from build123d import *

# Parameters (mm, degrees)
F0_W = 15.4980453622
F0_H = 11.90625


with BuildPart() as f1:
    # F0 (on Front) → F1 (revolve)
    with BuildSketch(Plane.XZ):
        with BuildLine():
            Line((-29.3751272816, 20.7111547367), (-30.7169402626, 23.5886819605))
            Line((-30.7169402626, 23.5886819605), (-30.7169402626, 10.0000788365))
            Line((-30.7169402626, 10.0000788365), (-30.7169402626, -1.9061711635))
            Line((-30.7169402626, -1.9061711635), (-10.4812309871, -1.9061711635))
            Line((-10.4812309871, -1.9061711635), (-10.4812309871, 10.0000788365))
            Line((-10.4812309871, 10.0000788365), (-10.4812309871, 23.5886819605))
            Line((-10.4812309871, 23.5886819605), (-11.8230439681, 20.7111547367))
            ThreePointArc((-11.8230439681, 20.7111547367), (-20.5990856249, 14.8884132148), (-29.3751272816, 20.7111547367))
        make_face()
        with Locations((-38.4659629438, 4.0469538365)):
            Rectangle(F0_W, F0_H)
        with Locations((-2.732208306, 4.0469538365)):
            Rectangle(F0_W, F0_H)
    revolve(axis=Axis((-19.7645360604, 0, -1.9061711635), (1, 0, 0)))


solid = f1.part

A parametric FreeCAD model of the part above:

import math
import FreeCAD as App
import Part
import Sketcher
from FreeCAD import Vector
Q = App.Units.Quantity

doc = App.newDocument("Part")
params = doc.addObject("Spreadsheet::Sheet", "Params")
for row, (alias, value) in enumerate([
    ("sketch1_radius", "0.375 in"),
    ("sketch1_width", "2.017 in"),
    ("sketch1_height", "0.46875 in"),
    ("sketch1_length", "0.125 in"),
    ("revolution_angle", "360 deg"),
], start=1):
    params.set(f"A{row}", alias)
    params.set(f"B{row}", "=" + value)
    params.setAlias(f"B{row}", alias)

body = doc.addObject("PartDesign::Body", "Body")

sketch1 = body.newObject("Sketcher::SketchObject", "Sketch")
sketch1.AttachmentSupport = (doc.getObject("XZ_Plane"), [""])
sketch1.MapMode = "FlatFace"
sketch1.addGeometry([
    Part.LineSegment(Vector(-29.4, 20.7, 0), Vector(-30.7, 23.6, 0)),
    Part.LineSegment(Vector(-30.7, 23.6, 0), Vector(-30.7, 10, 0)),
    Part.LineSegment(Vector(-30.7, 10, 0), Vector(-46.2, 10, 0)),
    Part.LineSegment(Vector(-46.2, 10, 0), Vector(-46.2, -1.9, 0)),
    Part.LineSegment(Vector(-46.2, -1.9, 0), Vector(5, -1.9, 0)),
    Part.LineSegment(Vector(5, -1.9, 0), Vector(5, 10, 0)),
    Part.LineSegment(Vector(5, 10, 0), Vector(-10.5, 10, 0)),
    Part.LineSegment(Vector(-10.5, 10, 0), Vector(-10.5, 23.6, 0)),
    Part.LineSegment(Vector(-10.5, 23.6, 0), Vector(-11.8, 20.7, 0)),
    Part.ArcOfCircle(Part.Circle(Vector(-20.6, 24.4, 0), Vector(0, 0, 1), 9.5), math.radians(-157), math.radians(-23)),
], False)
sketch1.addGeometry(Part.LineSegment(Vector(-46.2, -1.9, 0), Vector(5, -1.9, 0)), True)
sketch1.addConstraint([
    Sketcher.Constraint("Coincident", 0, 2, 1, 1),
    Sketcher.Constraint("Coincident", 1, 2, 2, 1),
    Sketcher.Constraint("Coincident", 2, 2, 3, 1),
    Sketcher.Constraint("Coincident", 3, 2, 4, 1),
    Sketcher.Constraint("Coincident", 4, 2, 5, 1),
    Sketcher.Constraint("Coincident", 5, 2, 6, 1),
    Sketcher.Constraint("Coincident", 6, 2, 7, 1),
    Sketcher.Constraint("Coincident", 7, 2, 8, 1),
    Sketcher.Constraint("Coincident", 8, 2, 9, 2),
    Sketcher.Constraint("Coincident", 9, 1, 0, 1),
    Sketcher.Constraint("Vertical", 1),
    Sketcher.Constraint("Horizontal", 2),
    Sketcher.Constraint("Vertical", 3),
    Sketcher.Constraint("Horizontal", 4),
    Sketcher.Constraint("Vertical", 5),
    Sketcher.Constraint("Horizontal", 6),
    Sketcher.Constraint("Vertical", 7),
    Sketcher.Constraint("Horizontal", 10),
    Sketcher.Constraint("Coincident", 10, 1, 3, 2),
    Sketcher.Constraint("Horizontal", 2, 2, 5, 2),
    Sketcher.Constraint("Horizontal", 0, 2, 7, 2),
    Sketcher.Constraint("Horizontal", 8, 2, 9, 1),
    Sketcher.Constraint("Vertical", 5, 2, 10, 2),
    Sketcher.Constraint("Equal", 2, 6),
    Sketcher.Constraint("Equal", 0, 8),
    Sketcher.Constraint("Angle", 0, Q("115 deg")),
    Sketcher.Constraint("Radius", 9, Q("0.375 in")),
    Sketcher.Constraint("DistanceX", 4, 1, 4, 2, Q("2.017 in")),
    Sketcher.Constraint("DistanceY", 3, 2, 3, 1, Q("0.46875 in")),
    Sketcher.Constraint("Distance", 0, Q("0.125 in")),
    Sketcher.Constraint("DistanceX", 2, 2, 2, 1, Q("15.498045 mm")),
    Sketcher.Constraint("DistanceY", 1, 2, 1, 1, Q("13.588603 mm")),
    Sketcher.Constraint("DistanceX", 0, 2, -1, 1, Q("30.71694 mm")),
    Sketcher.Constraint("DistanceY", -1, 1, 0, 2, Q("23.588682 mm")),
])
sketch1.setExpression("Constraints[26]", "Params.sketch1_radius")
sketch1.setExpression("Constraints[27]", "Params.sketch1_width")
sketch1.setExpression("Constraints[28]", "Params.sketch1_height")
sketch1.setExpression("Constraints[29]", "Params.sketch1_length")
revolution = body.newObject("PartDesign::Revolution", "Revolution")
revolution.Profile = sketch1
revolution.ReferenceAxis = (sketch1, ["Axis0"])
revolution.setExpression("Angle", "Params.revolution_angle")

doc.recompute()
